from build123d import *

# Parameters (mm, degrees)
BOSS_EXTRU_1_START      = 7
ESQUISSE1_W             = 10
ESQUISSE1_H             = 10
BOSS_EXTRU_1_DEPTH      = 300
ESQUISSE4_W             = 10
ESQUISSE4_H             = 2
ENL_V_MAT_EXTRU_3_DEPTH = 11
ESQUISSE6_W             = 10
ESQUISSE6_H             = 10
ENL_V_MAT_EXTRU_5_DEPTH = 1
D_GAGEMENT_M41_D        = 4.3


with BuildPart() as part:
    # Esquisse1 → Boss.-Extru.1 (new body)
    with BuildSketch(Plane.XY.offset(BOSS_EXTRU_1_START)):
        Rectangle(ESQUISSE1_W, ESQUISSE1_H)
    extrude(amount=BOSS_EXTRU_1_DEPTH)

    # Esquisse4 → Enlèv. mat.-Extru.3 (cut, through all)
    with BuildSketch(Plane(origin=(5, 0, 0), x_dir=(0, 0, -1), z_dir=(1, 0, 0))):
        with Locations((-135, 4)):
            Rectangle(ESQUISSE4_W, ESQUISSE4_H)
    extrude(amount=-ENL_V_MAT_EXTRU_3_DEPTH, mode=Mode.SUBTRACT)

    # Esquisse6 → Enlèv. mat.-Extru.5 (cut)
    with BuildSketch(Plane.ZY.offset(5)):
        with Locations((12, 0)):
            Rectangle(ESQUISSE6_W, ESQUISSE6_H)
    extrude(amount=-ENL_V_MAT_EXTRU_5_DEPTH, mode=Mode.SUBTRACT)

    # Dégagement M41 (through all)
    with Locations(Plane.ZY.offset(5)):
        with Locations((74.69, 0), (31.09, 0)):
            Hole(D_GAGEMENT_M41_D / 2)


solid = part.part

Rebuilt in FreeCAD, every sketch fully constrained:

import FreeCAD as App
import Part
import Sketcher

V = App.Vector


def add_polygon(sketch, points):
    """Adds a closed chain of lines whose ends are joined by coincident constraints."""
    first, n = sketch.GeometryCount, len(points)
    for a, b in zip(points, points[1:] + points[:1]):
        sketch.addGeometry(Part.LineSegment(App.Vector(*a, 0), App.Vector(*b, 0)), False)
    for i in range(n):
        sketch.addConstraint(Sketcher.Constraint("Coincident", first + i, 2, first + (i + 1) % n, 1))

doc = App.newDocument("Part")
params = doc.addObject("Spreadsheet::Sheet", "Params")
for row, (alias, value) in enumerate([
    ("sketch1_width", "10 mm"),
    ("pad1_length", "300 mm"),
    ("sketch2_width", "2 mm"),
    ("sketch2_height", "10 mm"),
    ("sketch3_width", "10 mm"),
    ("pocket2_length", "1 mm"),
    ("sketch4_diameter", "4.3 mm"),
    ("hole_diameter", "4.3 mm"),
], start=1):
    params.set(f"A{row}", alias)
    params.set(f"B{row}", "=" + value)
    params.setAlias(f"B{row}", alias)

body = doc.addObject("PartDesign::Body", "Body")

# Sketch on XY plane
sketch1 = doc.addObject("Sketcher::SketchObject", "Sketch")
body.addObject(sketch1)
sketch1.AttachmentSupport = (doc.XY_Plane, [""])
sketch1.MapMode = "FlatFace"
sketch1.AttachmentOffset = App.Placement(V(0, 0, 7), App.Rotation())
add_polygon(sketch1, [(-5, 5), (-5, -5), (5, -5), (5, 5)])  # lines 0-3
sketch1.addConstraint([
    Sketcher.Constraint("Vertical", 0),
    Sketcher.Constraint("Horizontal", 1),
    Sketcher.Constraint("Vertical", 2),
    Sketcher.Constraint("Horizontal", 3),
    Sketcher.Constraint("Symmetric", 0, 2, 2, 2, -1, 1),
    Sketcher.Constraint("Equal", 3, 0),
    Sketcher.Constraint("DistanceX", 1, 1, 1, 2, 10.0),
])
sketch1.setExpression("Constraints[10]", "Params.sketch1_width")
pad1 = doc.addObject("PartDesign::Pad", "Pad")
body.addObject(pad1)
pad1.Profile = sketch1
pad1.setExpression("Length", "Params.pad1_length")

# Sketch on YZ plane
sketch2 = doc.addObject("Sketcher::SketchObject", "Sketch001")
body.addObject(sketch2)
sketch2.AttachmentSupport = (doc.YZ_Plane, [""])
sketch2.MapMode = "FlatFace"
sketch2.AttachmentOffset = App.Placement(V(0, 0, 5), App.Rotation())
add_polygon(sketch2, [(5, 140), (3, 140), (3, 130), (5, 130)])  # lines 0-3
sketch2.addConstraint([
    Sketcher.Constraint("Horizontal", 0),
    Sketcher.Constraint("Vertical", 1),
    Sketcher.Constraint("Horizontal", 2),
    Sketcher.Constraint("Vertical", 3),
    Sketcher.Constraint("DistanceX", 0, 2, 0, 1, 2.0),
    Sketcher.Constraint("DistanceY", 1, 2, 1, 1, 10.0),
    Sketcher.Constraint("DistanceX", -1, 1, 0, 2, 3.0),
    Sketcher.Constraint("DistanceY", -1, 1, 0, 2, 140.0),
])
sketch2.setExpression("Constraints[8]", "Params.sketch2_width")
sketch2.setExpression("Constraints[9]", "Params.sketch2_height")
pocket1 = doc.addObject("PartDesign::Pocket", "Pocket")
body.addObject(pocket1)
pocket1.Profile = sketch2
pocket1.Type = "ThroughAll"

# Sketch on YZ plane
sketch3 = doc.addObject("Sketcher::SketchObject", "Sketch002")
body.addObject(sketch3)
sketch3.AttachmentSupport = (doc.YZ_Plane, [""])
sketch3.MapMode = "FlatFace"
sketch3.AttachmentOffset = App.Placement(V(0, 0, -5), App.Rotation())
add_polygon(sketch3, [(5, 7), (-5, 7), (-5, 17), (5, 17)])  # lines 0-3
sketch3.addConstraint([
    Sketcher.Constraint("Horizontal", 0),
    Sketcher.Constraint("Vertical", 1),
    Sketcher.Constraint("Horizontal", 2),
    Sketcher.Constraint("Vertical", 3),
    Sketcher.Constraint("Equal", 2, 1),
    Sketcher.Constraint("DistanceX", 0, 2, 0, 1, 10.0),
    Sketcher.Constraint("DistanceX", 0, 2, -1, 1, 5.0),
    Sketcher.Constraint("DistanceY", -1, 1, 0, 2, 7.0),
])
sketch3.setExpression("Constraints[9]", "Params.sketch3_width")
pocket2 = doc.addObject("PartDesign::Pocket", "Pocket001")
body.addObject(pocket2)
pocket2.Profile = sketch3
pocket2.setExpression("Length", "Params.pocket2_length")
pocket2.Reversed = True

# Sketch on YZ plane
sketch4 = doc.addObject("Sketcher::SketchObject", "Sketch003")
body.addObject(sketch4)
sketch4.AttachmentSupport = (doc.YZ_Plane, [""])
sketch4.MapMode = "FlatFace"
sketch4.AttachmentOffset = App.Placement(V(0, 0, -5), App.Rotation())
sketch4.addGeometry([
    Part.Circle(V(0, 74.7, 0), V(0, 0, 1), 2.1),
    Part.Circle(V(0, 31.1, 0), V(0, 0, 1), 2.1),
], False)
sketch4.addConstraint([
    Sketcher.Constraint("Equal", 0, 1),
    Sketcher.Constraint("PointOnObject", 0, 3, -2),
    Sketcher.Constraint("PointOnObject", 1, 3, -2),
    Sketcher.Constraint("Diameter", 0, 4.3),
    Sketcher.Constraint("DistanceY", 1, 3, 0, 3, 43.6),
    Sketcher.Constraint("DistanceY", -1, 1, 0, 3, 74.69),
])
sketch4.setExpression("Constraints[3]", "Params.sketch4_diameter")
doc.recompute()
hole = doc.addObject("PartDesign::Hole", "Hole")
body.addObject(hole)
hole.Profile = sketch4
hole.ThreadType = "None"
hole.setExpression("Diameter", "Params.hole_diameter")
hole.DepthType = "ThroughAll"
hole.Reversed = True

doc.recompute()
